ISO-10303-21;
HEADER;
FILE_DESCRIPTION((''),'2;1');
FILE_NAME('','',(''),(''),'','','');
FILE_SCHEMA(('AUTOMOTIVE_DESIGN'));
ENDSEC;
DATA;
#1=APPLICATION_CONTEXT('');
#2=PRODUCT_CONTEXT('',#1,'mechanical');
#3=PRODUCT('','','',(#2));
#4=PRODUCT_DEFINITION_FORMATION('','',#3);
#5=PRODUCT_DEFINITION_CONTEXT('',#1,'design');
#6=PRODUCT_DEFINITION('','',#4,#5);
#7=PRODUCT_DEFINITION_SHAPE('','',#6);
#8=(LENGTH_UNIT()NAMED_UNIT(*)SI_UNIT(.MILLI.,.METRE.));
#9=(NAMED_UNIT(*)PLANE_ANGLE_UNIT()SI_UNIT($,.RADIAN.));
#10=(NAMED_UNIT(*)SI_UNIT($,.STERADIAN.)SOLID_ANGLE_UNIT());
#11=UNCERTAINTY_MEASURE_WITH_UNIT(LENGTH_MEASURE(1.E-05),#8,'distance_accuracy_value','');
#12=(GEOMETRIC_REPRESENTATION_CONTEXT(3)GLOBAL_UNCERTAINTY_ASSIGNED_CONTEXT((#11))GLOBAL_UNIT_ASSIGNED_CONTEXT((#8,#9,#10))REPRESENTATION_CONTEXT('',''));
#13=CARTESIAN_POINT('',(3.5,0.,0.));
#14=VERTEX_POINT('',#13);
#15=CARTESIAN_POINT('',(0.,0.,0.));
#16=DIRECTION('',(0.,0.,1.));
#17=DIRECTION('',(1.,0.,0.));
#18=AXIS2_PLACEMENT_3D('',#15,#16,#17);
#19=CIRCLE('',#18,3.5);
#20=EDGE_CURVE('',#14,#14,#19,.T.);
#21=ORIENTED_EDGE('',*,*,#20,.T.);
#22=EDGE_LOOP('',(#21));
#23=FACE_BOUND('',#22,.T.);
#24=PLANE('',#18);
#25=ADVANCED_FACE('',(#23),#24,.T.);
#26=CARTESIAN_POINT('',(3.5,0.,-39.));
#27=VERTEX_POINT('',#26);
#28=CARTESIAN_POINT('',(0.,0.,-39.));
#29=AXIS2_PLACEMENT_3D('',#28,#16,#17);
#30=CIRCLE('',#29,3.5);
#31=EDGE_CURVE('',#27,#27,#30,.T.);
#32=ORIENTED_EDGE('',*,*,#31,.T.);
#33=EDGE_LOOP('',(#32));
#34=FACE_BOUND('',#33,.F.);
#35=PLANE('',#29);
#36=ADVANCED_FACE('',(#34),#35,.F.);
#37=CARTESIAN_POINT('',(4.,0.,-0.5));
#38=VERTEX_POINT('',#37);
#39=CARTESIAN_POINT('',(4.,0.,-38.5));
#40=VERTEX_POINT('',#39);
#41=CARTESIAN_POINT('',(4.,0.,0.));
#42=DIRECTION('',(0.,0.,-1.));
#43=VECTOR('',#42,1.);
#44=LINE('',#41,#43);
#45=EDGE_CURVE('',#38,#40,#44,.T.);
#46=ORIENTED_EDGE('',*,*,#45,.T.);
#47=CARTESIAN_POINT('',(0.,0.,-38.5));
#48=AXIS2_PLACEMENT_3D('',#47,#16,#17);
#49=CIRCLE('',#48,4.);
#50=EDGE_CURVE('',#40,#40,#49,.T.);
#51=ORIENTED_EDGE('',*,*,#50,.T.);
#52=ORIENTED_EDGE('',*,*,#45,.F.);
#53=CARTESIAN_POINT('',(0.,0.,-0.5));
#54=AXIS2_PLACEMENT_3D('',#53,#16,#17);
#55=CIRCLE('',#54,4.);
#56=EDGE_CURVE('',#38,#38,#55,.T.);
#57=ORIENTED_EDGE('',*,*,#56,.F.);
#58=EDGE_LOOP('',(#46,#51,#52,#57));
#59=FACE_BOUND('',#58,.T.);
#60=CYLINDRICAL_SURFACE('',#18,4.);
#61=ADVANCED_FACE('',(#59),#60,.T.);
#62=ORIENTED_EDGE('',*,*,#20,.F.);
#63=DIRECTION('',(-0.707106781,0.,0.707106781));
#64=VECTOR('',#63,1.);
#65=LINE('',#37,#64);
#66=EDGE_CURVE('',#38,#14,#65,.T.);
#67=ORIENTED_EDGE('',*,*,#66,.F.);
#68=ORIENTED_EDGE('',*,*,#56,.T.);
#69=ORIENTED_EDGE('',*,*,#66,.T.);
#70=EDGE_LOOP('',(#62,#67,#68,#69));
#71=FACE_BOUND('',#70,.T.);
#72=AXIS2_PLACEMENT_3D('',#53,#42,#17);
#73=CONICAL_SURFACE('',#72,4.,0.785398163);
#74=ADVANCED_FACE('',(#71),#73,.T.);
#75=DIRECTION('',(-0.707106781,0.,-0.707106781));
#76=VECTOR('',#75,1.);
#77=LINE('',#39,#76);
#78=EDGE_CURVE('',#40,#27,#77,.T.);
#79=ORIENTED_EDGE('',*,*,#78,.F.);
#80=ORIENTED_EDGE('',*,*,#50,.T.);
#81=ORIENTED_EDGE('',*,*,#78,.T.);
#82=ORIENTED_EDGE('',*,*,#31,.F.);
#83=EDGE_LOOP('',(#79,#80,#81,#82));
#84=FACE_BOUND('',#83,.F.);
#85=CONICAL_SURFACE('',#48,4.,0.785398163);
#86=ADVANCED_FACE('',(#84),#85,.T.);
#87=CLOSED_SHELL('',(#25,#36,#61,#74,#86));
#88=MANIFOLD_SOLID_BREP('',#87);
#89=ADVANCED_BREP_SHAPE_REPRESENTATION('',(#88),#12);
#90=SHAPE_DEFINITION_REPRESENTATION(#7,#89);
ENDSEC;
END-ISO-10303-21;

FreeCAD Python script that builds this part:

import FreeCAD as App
import Part
import Sketcher
Q = App.Units.Quantity


def edges_at(feature, points):
    """Names of the edges that pass closest to the given points."""
    edges = feature.Shape.Edges
    near = lambda p: min(range(len(edges)), key=lambda i: edges[i].distToShape(Part.Vertex(*p))[0])
    return sorted({f"Edge{near(p) + 1}" for p in points})

doc = App.newDocument("Part")
body = doc.addObject("PartDesign::Body", "Body")

# Sketch on XY plane
sketch1 = doc.addObject("Sketcher::SketchObject", "Sketch")
body.addObject(sketch1)
sketch1.AttachmentSupport = (doc.XY_Plane, [""])
sketch1.MapMode = "FlatFace"
sketch1.addGeometry(Part.Circle(App.Vector(0, 0, 0), App.Vector(0, 0, 1), 4), False)
sketch1.addConstraint([
    Sketcher.Constraint("Coincident", 0, 3, -1, 1),
    Sketcher.Constraint("Diameter", 0, Q("8 mm")),
])
pad1 = doc.addObject("PartDesign::Pad", "Pad")
body.addObject(pad1)
pad1.Profile = sketch1
pad1.Length = 39
pad1.Reversed = True
doc.recompute()

chamfer = doc.addObject("PartDesign::Chamfer", "Chamfer")
body.addObject(chamfer)
chamfer.Base = (pad1, edges_at(pad1, [(-4, 0, 0), (-4, 0, -39)]))
chamfer.Size = 0.5

doc.recompute()
